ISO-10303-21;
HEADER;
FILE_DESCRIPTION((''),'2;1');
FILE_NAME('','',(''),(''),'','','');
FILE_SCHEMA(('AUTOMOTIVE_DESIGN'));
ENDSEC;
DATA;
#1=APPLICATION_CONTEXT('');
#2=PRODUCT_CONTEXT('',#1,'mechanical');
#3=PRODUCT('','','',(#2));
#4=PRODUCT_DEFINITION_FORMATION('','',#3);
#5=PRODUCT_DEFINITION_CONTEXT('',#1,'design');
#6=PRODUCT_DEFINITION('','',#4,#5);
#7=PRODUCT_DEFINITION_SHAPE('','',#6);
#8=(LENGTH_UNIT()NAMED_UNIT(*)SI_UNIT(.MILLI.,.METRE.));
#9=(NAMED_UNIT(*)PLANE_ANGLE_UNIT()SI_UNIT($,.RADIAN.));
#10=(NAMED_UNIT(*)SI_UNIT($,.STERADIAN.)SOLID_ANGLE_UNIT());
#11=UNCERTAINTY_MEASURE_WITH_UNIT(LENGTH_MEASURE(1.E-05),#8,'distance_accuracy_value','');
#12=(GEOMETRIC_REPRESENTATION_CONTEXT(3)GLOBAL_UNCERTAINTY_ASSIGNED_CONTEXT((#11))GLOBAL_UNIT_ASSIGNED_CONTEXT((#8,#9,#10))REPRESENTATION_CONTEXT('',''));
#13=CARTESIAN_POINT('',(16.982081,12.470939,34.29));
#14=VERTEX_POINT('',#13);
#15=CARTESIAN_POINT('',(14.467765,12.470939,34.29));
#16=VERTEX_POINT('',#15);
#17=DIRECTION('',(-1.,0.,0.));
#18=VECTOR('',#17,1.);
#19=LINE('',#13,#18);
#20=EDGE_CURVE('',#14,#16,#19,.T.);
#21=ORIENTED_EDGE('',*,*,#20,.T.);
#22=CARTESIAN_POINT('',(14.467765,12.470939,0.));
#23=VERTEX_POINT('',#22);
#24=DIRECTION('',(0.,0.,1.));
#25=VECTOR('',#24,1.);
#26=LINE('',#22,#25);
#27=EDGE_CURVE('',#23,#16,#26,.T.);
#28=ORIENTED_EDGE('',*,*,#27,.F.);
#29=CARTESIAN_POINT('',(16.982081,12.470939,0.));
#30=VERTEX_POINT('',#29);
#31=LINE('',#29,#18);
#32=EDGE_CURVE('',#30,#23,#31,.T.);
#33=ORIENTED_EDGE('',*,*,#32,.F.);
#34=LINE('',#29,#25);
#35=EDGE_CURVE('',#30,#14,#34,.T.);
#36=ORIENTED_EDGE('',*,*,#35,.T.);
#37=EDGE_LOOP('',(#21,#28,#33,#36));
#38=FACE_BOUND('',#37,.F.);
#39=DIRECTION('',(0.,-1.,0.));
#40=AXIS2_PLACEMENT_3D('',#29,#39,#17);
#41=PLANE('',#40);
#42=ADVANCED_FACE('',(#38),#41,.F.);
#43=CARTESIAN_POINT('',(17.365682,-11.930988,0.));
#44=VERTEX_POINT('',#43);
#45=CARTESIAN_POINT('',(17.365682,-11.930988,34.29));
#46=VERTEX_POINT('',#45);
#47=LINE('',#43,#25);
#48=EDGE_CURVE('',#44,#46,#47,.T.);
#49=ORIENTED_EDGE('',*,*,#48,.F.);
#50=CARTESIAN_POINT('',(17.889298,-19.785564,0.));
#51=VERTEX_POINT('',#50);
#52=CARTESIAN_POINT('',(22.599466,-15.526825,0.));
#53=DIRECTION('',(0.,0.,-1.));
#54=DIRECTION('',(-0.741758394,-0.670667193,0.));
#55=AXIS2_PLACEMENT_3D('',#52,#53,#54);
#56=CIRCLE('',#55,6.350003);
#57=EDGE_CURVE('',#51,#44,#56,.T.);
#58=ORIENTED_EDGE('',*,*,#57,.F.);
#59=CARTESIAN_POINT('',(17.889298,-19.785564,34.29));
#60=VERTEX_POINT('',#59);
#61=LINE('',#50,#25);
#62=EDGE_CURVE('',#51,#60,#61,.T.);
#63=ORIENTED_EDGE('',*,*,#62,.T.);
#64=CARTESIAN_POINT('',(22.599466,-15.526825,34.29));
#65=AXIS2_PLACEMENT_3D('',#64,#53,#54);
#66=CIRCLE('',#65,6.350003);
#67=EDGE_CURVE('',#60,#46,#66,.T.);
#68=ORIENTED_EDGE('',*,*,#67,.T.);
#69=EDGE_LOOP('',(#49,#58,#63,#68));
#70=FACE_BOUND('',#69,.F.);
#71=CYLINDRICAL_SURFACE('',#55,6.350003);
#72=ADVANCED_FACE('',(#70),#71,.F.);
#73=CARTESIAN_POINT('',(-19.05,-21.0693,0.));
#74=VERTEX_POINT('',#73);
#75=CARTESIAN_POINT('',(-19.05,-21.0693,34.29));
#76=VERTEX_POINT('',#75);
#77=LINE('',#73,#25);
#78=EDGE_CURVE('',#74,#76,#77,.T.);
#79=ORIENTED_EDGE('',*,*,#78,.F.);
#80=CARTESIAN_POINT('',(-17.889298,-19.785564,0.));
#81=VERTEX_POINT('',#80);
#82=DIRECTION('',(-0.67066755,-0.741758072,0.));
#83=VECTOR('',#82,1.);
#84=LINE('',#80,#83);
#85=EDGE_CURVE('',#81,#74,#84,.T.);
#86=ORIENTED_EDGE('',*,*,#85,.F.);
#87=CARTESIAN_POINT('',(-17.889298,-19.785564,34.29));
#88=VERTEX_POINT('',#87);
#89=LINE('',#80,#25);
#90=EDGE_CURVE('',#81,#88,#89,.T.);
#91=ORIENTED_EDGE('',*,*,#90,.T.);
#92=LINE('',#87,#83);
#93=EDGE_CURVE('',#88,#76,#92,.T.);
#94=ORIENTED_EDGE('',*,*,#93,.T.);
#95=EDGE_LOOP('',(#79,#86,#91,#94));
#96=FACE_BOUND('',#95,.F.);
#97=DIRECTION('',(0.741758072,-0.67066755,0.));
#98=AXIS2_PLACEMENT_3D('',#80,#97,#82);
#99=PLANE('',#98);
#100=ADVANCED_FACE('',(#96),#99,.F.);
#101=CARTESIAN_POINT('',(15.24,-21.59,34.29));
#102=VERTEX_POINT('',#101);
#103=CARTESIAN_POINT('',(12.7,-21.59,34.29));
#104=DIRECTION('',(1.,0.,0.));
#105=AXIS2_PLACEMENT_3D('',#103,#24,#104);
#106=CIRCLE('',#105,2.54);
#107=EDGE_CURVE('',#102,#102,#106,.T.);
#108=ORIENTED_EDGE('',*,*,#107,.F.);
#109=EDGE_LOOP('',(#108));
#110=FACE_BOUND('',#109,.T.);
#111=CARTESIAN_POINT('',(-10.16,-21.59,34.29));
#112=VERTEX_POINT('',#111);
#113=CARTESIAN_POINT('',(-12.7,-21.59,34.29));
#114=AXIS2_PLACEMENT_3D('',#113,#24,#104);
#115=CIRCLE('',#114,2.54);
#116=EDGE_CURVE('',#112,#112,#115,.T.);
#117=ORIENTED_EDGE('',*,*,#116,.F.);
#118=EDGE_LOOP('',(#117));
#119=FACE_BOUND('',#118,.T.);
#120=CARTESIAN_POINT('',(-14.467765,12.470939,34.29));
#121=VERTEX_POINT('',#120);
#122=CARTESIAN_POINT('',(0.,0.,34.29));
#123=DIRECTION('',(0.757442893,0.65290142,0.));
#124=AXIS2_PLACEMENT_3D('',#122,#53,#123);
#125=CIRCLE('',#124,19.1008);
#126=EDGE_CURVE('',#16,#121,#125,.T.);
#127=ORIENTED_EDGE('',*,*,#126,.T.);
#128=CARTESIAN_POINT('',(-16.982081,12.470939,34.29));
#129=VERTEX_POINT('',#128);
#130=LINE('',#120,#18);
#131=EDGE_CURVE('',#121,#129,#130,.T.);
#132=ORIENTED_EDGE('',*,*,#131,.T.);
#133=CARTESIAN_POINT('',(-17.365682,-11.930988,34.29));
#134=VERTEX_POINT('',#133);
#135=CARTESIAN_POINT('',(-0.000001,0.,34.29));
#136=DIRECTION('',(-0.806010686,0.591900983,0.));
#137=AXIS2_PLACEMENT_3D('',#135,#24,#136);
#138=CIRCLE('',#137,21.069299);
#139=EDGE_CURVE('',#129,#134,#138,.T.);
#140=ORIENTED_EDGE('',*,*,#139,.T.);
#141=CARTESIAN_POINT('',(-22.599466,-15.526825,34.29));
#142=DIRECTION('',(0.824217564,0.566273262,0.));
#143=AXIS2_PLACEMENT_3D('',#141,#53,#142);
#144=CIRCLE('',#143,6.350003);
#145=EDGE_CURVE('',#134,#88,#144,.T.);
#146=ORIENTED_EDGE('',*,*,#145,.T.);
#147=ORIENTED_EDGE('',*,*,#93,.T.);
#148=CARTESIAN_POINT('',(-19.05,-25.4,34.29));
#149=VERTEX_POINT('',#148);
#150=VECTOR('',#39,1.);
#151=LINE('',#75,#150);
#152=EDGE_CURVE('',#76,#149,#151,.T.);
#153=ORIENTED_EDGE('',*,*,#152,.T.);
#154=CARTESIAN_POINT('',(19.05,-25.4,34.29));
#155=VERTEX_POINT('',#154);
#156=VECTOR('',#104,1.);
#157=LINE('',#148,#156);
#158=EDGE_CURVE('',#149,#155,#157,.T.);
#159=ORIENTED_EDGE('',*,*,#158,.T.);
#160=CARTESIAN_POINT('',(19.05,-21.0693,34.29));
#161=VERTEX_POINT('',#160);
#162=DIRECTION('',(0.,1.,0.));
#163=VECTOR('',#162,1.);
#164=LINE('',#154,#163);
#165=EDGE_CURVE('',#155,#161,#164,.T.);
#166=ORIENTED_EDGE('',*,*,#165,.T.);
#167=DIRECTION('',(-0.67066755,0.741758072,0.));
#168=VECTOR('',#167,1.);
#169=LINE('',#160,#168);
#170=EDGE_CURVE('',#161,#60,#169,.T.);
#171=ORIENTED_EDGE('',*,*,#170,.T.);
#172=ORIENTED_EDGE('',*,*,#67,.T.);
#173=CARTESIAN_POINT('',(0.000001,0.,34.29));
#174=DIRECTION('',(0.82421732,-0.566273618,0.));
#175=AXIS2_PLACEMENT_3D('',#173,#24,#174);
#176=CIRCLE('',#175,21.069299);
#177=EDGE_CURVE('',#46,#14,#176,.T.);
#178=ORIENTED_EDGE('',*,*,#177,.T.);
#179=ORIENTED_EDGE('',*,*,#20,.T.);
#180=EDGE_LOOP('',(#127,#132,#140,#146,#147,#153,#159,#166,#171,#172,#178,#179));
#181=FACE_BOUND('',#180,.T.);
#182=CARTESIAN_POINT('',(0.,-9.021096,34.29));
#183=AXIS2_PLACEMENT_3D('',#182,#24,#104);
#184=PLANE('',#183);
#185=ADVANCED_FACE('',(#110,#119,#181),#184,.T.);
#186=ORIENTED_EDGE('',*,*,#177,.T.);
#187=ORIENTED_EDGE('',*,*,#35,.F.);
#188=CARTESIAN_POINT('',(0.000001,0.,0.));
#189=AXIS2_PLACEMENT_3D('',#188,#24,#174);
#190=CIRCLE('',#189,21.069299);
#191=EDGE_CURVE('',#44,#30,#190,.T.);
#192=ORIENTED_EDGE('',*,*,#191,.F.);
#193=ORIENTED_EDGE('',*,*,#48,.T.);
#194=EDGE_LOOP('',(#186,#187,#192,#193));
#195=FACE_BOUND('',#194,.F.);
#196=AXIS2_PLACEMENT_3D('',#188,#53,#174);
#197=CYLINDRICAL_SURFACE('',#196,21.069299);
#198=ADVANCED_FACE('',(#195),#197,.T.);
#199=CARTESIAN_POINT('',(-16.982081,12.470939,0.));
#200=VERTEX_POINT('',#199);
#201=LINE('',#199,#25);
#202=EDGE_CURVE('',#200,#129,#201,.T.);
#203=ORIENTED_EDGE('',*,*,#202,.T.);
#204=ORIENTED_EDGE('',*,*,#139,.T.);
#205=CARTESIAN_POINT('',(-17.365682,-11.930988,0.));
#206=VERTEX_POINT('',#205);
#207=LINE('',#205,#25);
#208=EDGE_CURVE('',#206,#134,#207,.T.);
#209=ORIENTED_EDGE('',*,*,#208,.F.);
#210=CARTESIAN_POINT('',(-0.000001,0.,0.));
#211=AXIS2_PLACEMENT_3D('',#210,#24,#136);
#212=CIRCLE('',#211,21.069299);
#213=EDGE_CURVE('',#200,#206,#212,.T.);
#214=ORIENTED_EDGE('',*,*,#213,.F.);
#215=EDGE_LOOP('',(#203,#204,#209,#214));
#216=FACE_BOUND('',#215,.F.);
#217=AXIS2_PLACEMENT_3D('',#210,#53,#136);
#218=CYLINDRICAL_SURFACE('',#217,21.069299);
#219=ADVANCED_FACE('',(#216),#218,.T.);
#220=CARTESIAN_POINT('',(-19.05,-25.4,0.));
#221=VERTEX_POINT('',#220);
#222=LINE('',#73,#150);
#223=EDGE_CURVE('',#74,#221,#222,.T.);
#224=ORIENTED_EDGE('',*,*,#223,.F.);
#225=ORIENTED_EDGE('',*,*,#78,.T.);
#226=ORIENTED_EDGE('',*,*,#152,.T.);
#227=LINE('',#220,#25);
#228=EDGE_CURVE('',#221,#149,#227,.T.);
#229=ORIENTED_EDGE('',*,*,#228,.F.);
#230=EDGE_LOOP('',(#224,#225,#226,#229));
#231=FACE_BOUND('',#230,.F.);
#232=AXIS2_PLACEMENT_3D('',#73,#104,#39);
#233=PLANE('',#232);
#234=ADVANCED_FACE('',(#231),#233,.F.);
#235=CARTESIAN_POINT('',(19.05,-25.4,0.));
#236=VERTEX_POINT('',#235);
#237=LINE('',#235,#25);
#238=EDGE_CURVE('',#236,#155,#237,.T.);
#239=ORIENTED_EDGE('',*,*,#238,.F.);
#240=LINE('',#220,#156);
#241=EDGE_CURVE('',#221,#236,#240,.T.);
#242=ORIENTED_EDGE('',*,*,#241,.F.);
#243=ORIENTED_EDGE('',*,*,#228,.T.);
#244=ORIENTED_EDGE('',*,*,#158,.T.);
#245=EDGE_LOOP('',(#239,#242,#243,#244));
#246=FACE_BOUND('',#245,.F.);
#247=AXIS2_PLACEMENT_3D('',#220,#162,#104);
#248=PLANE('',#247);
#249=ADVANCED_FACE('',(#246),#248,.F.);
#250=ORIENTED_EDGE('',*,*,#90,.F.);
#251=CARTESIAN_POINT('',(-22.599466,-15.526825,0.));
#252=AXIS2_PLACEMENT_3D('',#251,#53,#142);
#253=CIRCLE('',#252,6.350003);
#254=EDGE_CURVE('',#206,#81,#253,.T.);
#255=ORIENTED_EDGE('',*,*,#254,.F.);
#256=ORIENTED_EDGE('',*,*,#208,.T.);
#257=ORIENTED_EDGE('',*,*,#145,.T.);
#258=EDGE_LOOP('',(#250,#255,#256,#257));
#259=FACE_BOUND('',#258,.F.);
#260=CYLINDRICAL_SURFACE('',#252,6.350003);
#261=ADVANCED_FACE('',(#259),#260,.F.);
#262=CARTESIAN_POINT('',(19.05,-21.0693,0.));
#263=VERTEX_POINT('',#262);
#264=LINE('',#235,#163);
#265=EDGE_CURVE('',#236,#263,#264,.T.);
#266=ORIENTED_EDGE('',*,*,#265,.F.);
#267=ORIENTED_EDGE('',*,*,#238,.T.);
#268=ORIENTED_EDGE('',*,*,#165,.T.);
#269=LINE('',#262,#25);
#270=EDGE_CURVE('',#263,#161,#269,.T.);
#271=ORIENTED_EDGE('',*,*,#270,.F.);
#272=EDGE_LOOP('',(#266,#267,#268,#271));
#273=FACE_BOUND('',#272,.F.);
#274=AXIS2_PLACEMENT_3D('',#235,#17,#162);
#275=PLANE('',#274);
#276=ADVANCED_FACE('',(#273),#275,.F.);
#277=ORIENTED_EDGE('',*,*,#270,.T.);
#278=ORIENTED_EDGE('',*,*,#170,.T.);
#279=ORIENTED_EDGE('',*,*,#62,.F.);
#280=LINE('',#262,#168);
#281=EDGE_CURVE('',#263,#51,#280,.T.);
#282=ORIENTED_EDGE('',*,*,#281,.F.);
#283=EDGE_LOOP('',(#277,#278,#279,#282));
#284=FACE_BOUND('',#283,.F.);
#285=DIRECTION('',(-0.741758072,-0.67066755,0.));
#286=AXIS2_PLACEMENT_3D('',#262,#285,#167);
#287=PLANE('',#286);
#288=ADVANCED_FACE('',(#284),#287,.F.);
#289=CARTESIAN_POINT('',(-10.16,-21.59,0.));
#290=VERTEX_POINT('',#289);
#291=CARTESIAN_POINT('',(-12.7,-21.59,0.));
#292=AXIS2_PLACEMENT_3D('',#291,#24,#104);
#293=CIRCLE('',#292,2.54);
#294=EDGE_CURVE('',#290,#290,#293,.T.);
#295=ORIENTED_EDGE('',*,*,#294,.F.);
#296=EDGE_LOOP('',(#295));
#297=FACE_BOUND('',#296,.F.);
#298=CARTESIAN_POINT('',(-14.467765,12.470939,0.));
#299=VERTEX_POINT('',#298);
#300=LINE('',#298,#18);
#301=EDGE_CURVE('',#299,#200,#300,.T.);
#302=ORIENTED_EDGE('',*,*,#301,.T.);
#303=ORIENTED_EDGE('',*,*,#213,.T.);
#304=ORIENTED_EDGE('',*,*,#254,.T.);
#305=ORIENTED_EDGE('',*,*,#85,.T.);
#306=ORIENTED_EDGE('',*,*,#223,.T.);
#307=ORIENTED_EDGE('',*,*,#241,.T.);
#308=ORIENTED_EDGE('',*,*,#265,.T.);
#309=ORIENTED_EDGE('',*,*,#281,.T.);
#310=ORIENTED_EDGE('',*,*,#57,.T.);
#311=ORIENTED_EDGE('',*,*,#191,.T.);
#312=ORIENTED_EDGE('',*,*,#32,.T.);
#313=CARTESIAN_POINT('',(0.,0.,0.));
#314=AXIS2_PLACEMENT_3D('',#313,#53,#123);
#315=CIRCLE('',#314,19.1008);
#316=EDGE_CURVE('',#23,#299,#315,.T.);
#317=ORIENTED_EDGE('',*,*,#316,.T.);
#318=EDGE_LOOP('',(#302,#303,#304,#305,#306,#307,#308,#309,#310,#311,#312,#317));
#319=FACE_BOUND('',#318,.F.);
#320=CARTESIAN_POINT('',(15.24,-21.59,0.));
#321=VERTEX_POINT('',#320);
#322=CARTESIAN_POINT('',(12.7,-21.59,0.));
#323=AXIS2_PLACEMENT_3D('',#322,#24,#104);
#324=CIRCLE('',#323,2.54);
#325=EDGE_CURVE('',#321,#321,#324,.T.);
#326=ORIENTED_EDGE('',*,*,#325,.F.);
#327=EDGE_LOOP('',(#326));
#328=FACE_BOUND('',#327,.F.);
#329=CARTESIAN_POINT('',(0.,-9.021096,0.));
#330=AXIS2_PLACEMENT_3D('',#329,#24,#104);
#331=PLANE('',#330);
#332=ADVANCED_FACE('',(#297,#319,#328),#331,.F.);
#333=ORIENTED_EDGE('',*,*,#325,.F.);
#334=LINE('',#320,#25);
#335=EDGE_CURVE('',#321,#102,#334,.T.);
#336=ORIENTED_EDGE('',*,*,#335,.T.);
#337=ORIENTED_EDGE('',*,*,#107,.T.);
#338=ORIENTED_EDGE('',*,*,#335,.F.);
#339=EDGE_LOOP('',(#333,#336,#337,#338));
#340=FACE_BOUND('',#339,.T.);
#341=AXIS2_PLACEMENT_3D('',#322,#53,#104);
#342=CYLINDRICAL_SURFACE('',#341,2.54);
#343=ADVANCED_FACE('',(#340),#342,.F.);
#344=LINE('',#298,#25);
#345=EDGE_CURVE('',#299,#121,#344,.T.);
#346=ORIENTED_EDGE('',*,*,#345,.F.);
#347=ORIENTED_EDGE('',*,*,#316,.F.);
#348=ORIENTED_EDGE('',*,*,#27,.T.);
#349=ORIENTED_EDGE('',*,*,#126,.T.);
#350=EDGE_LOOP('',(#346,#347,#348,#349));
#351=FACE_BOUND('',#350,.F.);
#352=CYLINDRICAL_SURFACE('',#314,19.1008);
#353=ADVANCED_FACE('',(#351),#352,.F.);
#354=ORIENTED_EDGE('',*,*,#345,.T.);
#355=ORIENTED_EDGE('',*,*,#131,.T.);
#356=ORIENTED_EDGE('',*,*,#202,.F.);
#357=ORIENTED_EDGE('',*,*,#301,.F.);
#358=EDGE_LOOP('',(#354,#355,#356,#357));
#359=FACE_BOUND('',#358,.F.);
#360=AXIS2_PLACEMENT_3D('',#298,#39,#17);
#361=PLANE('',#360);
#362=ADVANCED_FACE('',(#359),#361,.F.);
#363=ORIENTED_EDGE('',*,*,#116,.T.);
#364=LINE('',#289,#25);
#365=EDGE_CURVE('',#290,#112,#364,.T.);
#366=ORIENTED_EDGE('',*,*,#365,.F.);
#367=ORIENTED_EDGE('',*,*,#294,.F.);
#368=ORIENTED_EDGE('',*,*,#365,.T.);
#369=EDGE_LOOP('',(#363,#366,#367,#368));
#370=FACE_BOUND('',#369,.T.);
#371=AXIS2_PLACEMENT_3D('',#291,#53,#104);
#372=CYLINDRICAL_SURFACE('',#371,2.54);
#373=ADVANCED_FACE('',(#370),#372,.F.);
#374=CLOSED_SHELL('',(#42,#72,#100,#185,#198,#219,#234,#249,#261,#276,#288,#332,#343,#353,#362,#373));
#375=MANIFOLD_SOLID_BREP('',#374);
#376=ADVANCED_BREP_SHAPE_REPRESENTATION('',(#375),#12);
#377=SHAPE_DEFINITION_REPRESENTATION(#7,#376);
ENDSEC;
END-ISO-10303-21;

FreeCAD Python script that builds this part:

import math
import FreeCAD as App
import Part
import Sketcher
from FreeCAD import Vector
Q = App.Units.Quantity

doc = App.newDocument("Part")
body = doc.addObject("PartDesign::Body", "Body")

# Sketch on XY plane
sketch1 = doc.addObject("Sketcher::SketchObject", "Sketch")
body.addObject(sketch1)
sketch1.AttachmentSupport = (doc.XY_Plane, [""])
sketch1.MapMode = "FlatFace"
sketch1.addGeometry([
    Part.LineSegment(Vector(-14.467765, 12.470939, 0), Vector(-16.982081, 12.470939, 0)),  # 0
    Part.ArcOfCircle(Part.Circle(Vector(-0.000001, 0, 0), Vector(0, 0, 1), 21.069299), math.radians(143.707976), math.radians(214.49078)),  # 1
    Part.ArcOfCircle(Part.Circle(Vector(-22.599466, -15.526825, 0), Vector(0, 0, 1), 6.350003), math.radians(-42.11858), math.radians(34.490756)),  # 2
    Part.LineSegment(Vector(-17.889298, -19.785564, 0), Vector(-19.05, -21.0693, 0)),  # 3
    Part.LineSegment(Vector(-19.05, -21.0693, 0), Vector(-19.05, -25.4, 0)),  # 4
    Part.LineSegment(Vector(-19.05, -25.4, 0), Vector(19.05, -25.4, 0)),  # 5
    Part.LineSegment(Vector(19.05, -25.4, 0), Vector(19.05, -21.0693, 0)),  # 6
    Part.LineSegment(Vector(19.05, -21.0693, 0), Vector(17.889298, -19.785564, 0)),  # 7
    Part.ArcOfCircle(Part.Circle(Vector(22.599466, -15.526825, 0), Vector(0, 0, 1), 6.350003), math.radians(145.509244), math.radians(222.11858)),  # 8
    Part.ArcOfCircle(Part.Circle(Vector(0.000001, 0, 0), Vector(0, 0, 1), 21.069299), math.radians(-34.49078), math.radians(36.292024)),  # 9
    Part.LineSegment(Vector(16.982081, 12.470939, 0), Vector(14.467765, 12.470939, 0)),  # 10
    Part.ArcOfCircle(Part.Circle(Vector(0, 0, 0), Vector(0, 0, 1), 19.1008), math.radians(139.239285), math.radians(400.760715)),  # 11
    Part.Circle(Vector(-12.7, -21.59, 0), Vector(0, 0, 1), 2.54),  # 12
    Part.Circle(Vector(12.7, -21.59, 0), Vector(0, 0, 1), 2.54),  # 13
], False)
sketch1.addConstraint([
    Sketcher.Constraint("Coincident", 0, 2, 1, 1),
    Sketcher.Constraint("Tangent", 1, 2, 2, 2),
    Sketcher.Constraint("Tangent", 2, 1, 3, 1),
    Sketcher.Constraint("Coincident", 3, 2, 4, 1),
    Sketcher.Constraint("Coincident", 4, 2, 5, 1),
    Sketcher.Constraint("Coincident", 5, 2, 6, 1),
    Sketcher.Constraint("Coincident", 6, 2, 7, 1),
    Sketcher.Constraint("Tangent", 7, 2, 8, 2),
    Sketcher.Constraint("Tangent", 8, 1, 9, 1),
    Sketcher.Constraint("Coincident", 9, 2, 10, 1),
    Sketcher.Constraint("Coincident", 10, 2, 11, 2),
    Sketcher.Constraint("Coincident", 11, 1, 0, 1),
    Sketcher.Constraint("Horizontal", 0),
    Sketcher.Constraint("Vertical", 4),
    Sketcher.Constraint("Horizontal", 5),
    Sketcher.Constraint("Vertical", 6),
    Sketcher.Constraint("Horizontal", 10),
    Sketcher.Constraint("Coincident", 1, 3, -1, 1),
    Sketcher.Constraint("Coincident", 9, 3, -1, 1),
    Sketcher.Constraint("Coincident", 11, 3, -1, 1),
    Sketcher.Constraint("Equal", 2, 8),
    Sketcher.Constraint("Equal", 1, 9),
    Sketcher.Constraint("Equal", 12, 13),
    Sketcher.Constraint("Symmetric", 12, 3, 13, 3, -2),
    Sketcher.Constraint("Symmetric", 3, 2, 6, 2, -2),
    Sketcher.Constraint("Horizontal", 2, 3, 8, 3),
    Sketcher.Constraint("Horizontal", 0, 2, 9, 2),
    Sketcher.Constraint("Diameter", 12, Q("0.2 in")),
    Sketcher.Constraint("Radius", 2, Q("0.2500001 in")),
    Sketcher.Constraint("DistanceX", 5, 1, 5, 2, Q("1.5 in")),
    Sketcher.Constraint("DistanceY", 4, 2, -1, 1, Q("1 in")),
    Sketcher.Constraint("Radius", 11, Q("0.752 in")),
    Sketcher.Constraint("DistanceX", 12, 3, 13, 3, Q("1 in")),
    Sketcher.Constraint("Radius", 1, Q("0.8295 in")),
    Sketcher.Constraint("DistanceY", 12, 3, -1, 1, Q("0.85 in")),
    Sketcher.Constraint("DistanceY", 4, 2, 4, 1, Q("0.1705 in")),
    Sketcher.Constraint("DistanceX", 2, 1, -1, 1, Q("17.889298 mm")),
    Sketcher.Constraint("DistanceX", 9, 2, 8, 1, Q("0.383601 mm")),
])
pad1 = doc.addObject("PartDesign::Pad", "Pad")
body.addObject(pad1)
pad1.Profile = sketch1
pad1.Length = Q("1.35 in")

doc.recompute()
